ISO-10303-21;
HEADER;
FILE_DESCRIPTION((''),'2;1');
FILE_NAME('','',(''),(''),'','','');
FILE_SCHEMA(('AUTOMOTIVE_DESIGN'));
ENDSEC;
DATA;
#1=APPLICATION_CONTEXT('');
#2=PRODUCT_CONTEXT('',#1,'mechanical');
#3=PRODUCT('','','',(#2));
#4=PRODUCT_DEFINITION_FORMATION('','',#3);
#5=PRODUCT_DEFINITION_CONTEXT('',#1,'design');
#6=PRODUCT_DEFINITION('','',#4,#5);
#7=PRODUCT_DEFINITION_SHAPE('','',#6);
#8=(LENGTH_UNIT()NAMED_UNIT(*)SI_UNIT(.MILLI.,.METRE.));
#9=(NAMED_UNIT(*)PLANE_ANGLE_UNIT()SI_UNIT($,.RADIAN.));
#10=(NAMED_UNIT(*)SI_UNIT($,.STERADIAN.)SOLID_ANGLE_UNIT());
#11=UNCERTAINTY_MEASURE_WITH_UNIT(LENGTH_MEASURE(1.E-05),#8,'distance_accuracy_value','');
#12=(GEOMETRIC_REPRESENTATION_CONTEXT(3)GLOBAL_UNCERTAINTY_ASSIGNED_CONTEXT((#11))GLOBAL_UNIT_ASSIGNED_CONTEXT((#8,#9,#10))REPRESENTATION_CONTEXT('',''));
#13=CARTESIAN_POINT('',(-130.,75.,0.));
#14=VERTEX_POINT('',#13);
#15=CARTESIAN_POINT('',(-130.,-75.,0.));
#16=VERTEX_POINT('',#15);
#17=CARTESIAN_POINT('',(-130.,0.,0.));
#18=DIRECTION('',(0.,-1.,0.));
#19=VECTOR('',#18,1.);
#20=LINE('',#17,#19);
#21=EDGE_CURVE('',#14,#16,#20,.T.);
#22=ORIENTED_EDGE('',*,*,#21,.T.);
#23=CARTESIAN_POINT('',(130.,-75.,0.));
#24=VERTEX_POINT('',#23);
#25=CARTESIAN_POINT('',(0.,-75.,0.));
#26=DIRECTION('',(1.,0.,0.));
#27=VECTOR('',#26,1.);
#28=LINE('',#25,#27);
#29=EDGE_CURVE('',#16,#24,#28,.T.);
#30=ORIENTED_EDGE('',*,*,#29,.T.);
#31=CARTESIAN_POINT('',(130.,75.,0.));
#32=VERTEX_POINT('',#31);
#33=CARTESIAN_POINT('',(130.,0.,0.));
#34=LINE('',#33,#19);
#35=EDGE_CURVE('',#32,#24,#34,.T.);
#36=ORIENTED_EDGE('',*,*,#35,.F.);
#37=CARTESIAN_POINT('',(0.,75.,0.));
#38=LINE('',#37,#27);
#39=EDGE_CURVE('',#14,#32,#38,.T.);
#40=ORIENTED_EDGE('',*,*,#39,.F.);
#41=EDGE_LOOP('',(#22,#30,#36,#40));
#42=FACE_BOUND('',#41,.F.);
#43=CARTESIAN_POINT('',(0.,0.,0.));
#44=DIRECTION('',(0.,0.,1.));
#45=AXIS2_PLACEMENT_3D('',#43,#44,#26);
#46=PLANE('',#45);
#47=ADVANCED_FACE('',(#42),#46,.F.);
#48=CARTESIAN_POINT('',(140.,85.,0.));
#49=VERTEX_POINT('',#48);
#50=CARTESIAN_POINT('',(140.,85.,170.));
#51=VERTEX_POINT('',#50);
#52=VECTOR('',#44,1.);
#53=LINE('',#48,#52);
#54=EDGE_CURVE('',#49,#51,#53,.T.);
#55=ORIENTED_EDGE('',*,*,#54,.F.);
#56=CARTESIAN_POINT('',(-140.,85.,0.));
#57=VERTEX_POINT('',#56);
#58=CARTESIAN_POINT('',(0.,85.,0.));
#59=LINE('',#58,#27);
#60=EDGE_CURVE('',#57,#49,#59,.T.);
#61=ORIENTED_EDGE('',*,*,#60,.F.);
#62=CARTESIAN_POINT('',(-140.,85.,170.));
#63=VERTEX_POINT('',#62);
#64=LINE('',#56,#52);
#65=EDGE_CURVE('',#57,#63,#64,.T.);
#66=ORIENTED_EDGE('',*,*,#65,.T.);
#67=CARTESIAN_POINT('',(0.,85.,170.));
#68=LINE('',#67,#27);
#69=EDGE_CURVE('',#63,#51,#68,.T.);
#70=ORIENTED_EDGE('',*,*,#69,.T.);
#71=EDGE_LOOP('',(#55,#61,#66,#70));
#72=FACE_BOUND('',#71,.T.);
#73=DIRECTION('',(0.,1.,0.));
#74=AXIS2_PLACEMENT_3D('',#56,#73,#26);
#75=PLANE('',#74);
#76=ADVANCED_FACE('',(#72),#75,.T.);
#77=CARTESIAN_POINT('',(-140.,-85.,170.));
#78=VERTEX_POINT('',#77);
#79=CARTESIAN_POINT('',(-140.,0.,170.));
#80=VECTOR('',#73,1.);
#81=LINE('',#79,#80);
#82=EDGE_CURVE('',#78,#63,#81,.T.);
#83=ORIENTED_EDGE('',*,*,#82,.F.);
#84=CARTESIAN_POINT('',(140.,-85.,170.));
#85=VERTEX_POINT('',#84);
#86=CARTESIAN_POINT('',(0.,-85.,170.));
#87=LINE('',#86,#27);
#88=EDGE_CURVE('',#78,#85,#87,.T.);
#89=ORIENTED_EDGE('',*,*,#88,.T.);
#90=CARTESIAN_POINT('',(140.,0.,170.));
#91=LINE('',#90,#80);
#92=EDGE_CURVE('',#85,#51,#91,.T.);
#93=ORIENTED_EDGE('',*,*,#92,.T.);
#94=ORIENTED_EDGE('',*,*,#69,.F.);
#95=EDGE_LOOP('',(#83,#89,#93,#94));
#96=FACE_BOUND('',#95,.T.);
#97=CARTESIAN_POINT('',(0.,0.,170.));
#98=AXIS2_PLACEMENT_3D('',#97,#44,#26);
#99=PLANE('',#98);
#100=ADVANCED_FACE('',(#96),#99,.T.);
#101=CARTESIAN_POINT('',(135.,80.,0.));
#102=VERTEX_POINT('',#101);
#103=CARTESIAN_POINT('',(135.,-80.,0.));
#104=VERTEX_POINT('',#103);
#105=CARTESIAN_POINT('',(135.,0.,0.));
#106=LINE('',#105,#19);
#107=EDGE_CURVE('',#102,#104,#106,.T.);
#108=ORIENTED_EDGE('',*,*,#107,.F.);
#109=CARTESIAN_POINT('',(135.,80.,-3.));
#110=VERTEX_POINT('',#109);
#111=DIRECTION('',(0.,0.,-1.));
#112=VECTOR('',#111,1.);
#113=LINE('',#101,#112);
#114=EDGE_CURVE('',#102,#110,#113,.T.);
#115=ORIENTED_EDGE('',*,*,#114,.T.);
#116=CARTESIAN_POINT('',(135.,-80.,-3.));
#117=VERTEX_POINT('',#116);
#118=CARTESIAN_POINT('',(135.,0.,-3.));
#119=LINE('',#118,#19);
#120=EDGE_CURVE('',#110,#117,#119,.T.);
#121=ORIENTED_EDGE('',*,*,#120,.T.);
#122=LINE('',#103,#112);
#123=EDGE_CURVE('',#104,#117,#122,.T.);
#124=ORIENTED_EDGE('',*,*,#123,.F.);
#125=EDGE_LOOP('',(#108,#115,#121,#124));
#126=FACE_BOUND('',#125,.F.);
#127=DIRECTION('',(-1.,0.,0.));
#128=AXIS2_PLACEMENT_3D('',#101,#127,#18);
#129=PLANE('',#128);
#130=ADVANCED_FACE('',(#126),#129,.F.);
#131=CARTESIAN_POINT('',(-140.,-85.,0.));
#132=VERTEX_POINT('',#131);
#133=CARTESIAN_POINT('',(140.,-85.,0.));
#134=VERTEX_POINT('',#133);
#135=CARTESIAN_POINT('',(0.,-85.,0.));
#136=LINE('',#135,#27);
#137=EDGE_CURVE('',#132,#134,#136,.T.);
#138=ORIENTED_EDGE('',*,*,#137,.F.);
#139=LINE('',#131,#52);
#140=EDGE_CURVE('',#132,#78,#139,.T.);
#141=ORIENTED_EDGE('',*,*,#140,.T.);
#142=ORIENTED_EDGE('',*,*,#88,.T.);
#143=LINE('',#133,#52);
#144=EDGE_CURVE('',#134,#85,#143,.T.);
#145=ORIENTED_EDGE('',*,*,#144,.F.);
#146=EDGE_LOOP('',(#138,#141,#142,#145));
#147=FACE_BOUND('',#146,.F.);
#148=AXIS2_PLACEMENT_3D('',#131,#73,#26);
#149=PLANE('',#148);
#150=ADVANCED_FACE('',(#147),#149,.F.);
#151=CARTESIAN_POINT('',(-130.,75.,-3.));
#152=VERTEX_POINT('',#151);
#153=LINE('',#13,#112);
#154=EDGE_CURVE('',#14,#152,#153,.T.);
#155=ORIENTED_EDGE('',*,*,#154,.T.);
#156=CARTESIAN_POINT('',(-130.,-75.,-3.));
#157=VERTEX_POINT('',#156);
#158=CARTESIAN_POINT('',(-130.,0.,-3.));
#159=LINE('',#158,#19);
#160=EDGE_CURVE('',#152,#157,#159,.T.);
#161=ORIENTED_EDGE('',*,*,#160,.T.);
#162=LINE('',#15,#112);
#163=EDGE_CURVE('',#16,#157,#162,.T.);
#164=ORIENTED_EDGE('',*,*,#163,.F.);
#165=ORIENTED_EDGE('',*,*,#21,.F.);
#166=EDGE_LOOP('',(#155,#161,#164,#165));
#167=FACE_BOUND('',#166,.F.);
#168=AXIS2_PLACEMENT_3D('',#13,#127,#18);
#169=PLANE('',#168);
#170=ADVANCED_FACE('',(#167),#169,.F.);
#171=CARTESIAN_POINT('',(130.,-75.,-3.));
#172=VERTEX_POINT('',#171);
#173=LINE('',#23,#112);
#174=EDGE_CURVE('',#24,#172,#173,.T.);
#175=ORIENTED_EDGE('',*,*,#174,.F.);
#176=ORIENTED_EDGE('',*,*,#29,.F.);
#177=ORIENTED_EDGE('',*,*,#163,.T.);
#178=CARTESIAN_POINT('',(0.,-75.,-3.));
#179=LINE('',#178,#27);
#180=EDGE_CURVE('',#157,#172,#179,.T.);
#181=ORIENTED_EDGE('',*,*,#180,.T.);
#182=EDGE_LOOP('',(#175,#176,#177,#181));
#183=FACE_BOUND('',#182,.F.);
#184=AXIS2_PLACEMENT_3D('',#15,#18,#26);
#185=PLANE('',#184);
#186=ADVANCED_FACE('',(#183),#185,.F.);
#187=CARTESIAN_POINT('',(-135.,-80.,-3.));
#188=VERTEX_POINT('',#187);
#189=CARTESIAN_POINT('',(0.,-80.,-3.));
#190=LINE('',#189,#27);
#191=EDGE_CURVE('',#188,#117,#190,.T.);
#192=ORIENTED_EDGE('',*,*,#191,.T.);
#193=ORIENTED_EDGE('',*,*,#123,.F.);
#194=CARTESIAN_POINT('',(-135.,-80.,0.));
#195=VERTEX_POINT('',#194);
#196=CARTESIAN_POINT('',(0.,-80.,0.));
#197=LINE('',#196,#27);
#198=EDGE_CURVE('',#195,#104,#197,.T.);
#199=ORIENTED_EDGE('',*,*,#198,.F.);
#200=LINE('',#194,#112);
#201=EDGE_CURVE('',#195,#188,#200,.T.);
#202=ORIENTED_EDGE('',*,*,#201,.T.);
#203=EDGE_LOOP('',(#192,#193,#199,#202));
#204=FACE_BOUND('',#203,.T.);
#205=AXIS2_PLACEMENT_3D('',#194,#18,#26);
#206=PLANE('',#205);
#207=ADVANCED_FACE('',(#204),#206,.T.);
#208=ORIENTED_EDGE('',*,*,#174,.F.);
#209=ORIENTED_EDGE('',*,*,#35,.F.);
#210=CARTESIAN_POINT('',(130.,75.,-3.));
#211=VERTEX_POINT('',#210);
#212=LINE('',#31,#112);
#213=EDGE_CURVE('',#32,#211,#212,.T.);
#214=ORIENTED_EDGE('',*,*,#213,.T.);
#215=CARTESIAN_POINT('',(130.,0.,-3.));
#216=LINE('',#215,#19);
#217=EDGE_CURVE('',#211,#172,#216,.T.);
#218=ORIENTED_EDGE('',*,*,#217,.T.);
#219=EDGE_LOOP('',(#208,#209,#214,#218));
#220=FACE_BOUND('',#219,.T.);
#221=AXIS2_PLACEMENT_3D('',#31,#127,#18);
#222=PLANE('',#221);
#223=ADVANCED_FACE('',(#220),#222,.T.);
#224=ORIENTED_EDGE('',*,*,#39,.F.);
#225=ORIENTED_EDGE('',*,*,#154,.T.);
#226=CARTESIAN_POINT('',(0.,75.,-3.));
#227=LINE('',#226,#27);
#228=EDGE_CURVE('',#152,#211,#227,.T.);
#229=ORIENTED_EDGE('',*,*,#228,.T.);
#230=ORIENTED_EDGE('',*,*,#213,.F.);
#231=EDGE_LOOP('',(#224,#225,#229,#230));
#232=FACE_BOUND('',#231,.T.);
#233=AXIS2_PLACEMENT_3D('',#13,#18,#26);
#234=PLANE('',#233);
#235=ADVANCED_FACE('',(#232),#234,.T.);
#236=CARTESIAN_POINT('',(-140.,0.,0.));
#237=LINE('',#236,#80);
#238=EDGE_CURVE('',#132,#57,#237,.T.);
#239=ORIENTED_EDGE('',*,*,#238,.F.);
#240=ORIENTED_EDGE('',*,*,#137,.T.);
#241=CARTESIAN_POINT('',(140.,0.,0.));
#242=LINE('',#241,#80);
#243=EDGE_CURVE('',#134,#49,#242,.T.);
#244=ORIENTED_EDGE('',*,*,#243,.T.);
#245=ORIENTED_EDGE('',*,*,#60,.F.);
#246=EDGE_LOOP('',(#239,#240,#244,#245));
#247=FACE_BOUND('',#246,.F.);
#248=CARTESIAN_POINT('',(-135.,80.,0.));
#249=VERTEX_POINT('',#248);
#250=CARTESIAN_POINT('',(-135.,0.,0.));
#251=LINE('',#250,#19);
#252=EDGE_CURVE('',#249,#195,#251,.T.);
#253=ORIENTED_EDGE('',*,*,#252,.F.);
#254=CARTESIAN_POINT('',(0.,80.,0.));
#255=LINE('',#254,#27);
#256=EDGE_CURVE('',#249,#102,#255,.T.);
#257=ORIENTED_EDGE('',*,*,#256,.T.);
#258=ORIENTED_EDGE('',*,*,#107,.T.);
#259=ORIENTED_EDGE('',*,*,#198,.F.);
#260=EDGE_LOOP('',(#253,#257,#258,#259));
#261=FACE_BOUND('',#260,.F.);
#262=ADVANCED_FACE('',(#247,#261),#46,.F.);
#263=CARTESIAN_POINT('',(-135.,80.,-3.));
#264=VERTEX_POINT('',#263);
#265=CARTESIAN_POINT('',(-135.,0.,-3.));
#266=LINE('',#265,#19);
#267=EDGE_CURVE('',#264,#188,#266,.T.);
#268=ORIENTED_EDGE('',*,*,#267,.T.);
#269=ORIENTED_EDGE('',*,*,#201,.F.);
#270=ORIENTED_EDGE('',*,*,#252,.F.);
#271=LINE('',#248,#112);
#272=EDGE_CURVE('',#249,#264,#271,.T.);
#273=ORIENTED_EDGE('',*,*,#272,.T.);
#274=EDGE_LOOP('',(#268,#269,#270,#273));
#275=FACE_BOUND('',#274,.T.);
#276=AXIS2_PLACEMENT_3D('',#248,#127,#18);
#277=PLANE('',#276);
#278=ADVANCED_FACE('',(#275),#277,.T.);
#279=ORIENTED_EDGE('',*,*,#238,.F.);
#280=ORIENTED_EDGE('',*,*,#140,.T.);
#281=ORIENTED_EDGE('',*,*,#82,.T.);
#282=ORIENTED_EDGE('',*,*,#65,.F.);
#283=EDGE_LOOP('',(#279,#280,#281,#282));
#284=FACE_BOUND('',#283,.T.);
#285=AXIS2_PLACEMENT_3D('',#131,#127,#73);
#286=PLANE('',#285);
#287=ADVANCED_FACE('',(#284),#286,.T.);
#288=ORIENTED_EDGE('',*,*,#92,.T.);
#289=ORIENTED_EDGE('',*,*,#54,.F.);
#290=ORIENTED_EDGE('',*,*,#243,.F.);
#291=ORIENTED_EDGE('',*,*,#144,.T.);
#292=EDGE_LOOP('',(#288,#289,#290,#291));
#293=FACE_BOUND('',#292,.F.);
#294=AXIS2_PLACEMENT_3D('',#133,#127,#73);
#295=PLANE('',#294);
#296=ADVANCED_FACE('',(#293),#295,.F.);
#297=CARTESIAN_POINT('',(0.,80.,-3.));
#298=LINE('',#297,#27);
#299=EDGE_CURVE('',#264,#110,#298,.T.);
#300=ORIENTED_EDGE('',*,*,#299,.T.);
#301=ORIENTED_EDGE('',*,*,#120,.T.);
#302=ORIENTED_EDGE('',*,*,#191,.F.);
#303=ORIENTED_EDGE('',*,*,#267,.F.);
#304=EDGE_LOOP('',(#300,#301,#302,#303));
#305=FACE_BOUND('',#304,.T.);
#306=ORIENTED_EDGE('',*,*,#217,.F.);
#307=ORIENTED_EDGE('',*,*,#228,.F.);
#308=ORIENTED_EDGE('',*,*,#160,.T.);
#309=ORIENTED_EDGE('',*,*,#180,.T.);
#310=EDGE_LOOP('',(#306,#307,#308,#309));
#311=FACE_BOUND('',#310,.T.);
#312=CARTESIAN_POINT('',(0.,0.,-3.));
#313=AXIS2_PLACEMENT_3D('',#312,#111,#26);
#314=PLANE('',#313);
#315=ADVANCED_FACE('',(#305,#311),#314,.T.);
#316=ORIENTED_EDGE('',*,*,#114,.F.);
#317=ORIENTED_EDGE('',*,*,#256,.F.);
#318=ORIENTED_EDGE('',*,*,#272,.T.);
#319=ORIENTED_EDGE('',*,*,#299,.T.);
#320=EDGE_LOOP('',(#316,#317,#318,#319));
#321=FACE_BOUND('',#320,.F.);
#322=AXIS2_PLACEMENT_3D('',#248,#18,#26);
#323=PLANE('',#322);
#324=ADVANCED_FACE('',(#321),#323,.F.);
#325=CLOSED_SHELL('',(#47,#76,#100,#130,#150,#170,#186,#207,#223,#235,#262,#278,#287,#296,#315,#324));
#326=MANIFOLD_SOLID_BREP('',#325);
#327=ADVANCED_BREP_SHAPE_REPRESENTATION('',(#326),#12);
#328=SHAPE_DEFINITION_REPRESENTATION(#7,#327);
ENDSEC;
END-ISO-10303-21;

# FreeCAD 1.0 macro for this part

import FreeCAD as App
import Part
import Sketcher

V = App.Vector
Q = App.Units.Quantity

doc = App.newDocument("Part")
params = doc.addObject("Spreadsheet::Sheet", "Params")
for row, (alias, value) in enumerate([
    ("sketch1_width", "280 mm"),
    ("sketch1_height", "170 mm"),
    ("pad1_length", "170 mm"),
    ("sketch2_width", "270 mm"),
    ("sketch2_width2", "260 mm"),
    ("sketch2_height", "160 mm"),
    ("sketch2_height2", "150 mm"),
    ("pad2_length", "3 mm"),
], start=1):
    params.set(f"A{row}", alias)
    params.set(f"B{row}", "=" + value)
    params.setAlias(f"B{row}", alias)

body = doc.addObject("PartDesign::Body", "Body")

# Sketch on XY plane
sketch1 = body.newObject("Sketcher::SketchObject", "Sketch")
sketch1.AttachmentSupport = (doc.getObject("XY_Plane"), [""])
sketch1.MapMode = "FlatFace"
sketch1.addGeometry(Part.LineSegment(V(-140, 85, 0), V(-140, -85, 0)), False)
sketch1.addGeometry(Part.LineSegment(V(-140, -85, 0), V(140, -85, 0)), False)
sketch1.addGeometry(Part.LineSegment(V(140, -85, 0), V(140, 85, 0)), False)
sketch1.addGeometry(Part.LineSegment(V(140, 85, 0), V(-140, 85, 0)), False)
sketch1.addConstraint(Sketcher.Constraint("Coincident", 0, 2, 1, 1))
sketch1.addConstraint(Sketcher.Constraint("Coincident", 1, 2, 2, 1))
sketch1.addConstraint(Sketcher.Constraint("Coincident", 2, 2, 3, 1))
sketch1.addConstraint(Sketcher.Constraint("Coincident", 3, 2, 0, 1))
sketch1.addConstraint(Sketcher.Constraint("Vertical", 0))
sketch1.addConstraint(Sketcher.Constraint("Horizontal", 1))
sketch1.addConstraint(Sketcher.Constraint("Vertical", 2))
sketch1.addConstraint(Sketcher.Constraint("Horizontal", 3))
sketch1.addConstraint(Sketcher.Constraint("Symmetric", 0, 2, 2, 2, -1, 1))
sketch1.addConstraint(Sketcher.Constraint("DistanceX", 1, 1, 1, 2, Q("280 mm")))
sketch1.addConstraint(Sketcher.Constraint("DistanceY", 0, 2, 0, 1, Q("170 mm")))
sketch1.setExpression("Constraints[9]", "Params.sketch1_width")
sketch1.setExpression("Constraints[10]", "Params.sketch1_height")
pad1 = body.newObject("PartDesign::Pad", "Pad")
pad1.Profile = sketch1
pad1.setExpression("Length", "Params.pad1_length")

# Sketch on XY plane
sketch2 = body.newObject("Sketcher::SketchObject", "Sketch001")
sketch2.AttachmentSupport = (doc.getObject("XY_Plane"), [""])
sketch2.MapMode = "FlatFace"
sketch2.addGeometry(Part.LineSegment(V(-135, -80, 0), V(-135, 80, 0)), False)
sketch2.addGeometry(Part.LineSegment(V(-135, 80, 0), V(135, 80, 0)), False)
sketch2.addGeometry(Part.LineSegment(V(135, 80, 0), V(135, -80, 0)), False)
sketch2.addGeometry(Part.LineSegment(V(135, -80, 0), V(-135, -80, 0)), False)
sketch2.addGeometry(Part.LineSegment(V(130, 75, 0), V(-130, 75, 0)), False)
sketch2.addGeometry(Part.LineSegment(V(-130, 75, 0), V(-130, -75, 0)), False)
sketch2.addGeometry(Part.LineSegment(V(-130, -75, 0), V(130, -75, 0)), False)
sketch2.addGeometry(Part.LineSegment(V(130, -75, 0), V(130, 75, 0)), False)
sketch2.addConstraint(Sketcher.Constraint("Coincident", 0, 2, 1, 1))
sketch2.addConstraint(Sketcher.Constraint("Coincident", 1, 2, 2, 1))
sketch2.addConstraint(Sketcher.Constraint("Coincident", 2, 2, 3, 1))
sketch2.addConstraint(Sketcher.Constraint("Coincident", 3, 2, 0, 1))
sketch2.addConstraint(Sketcher.Constraint("Coincident", 4, 2, 5, 1))
sketch2.addConstraint(Sketcher.Constraint("Coincident", 5, 2, 6, 1))
sketch2.addConstraint(Sketcher.Constraint("Coincident", 6, 2, 7, 1))
sketch2.addConstraint(Sketcher.Constraint("Coincident", 7, 2, 4, 1))
sketch2.addConstraint(Sketcher.Constraint("Vertical", 0))
sketch2.addConstraint(Sketcher.Constraint("Horizontal", 1))
sketch2.addConstraint(Sketcher.Constraint("Vertical", 2))
sketch2.addConstraint(Sketcher.Constraint("Horizontal", 3))
sketch2.addConstraint(Sketcher.Constraint("Horizontal", 4))
sketch2.addConstraint(Sketcher.Constraint("Vertical", 5))
sketch2.addConstraint(Sketcher.Constraint("Horizontal", 6))
sketch2.addConstraint(Sketcher.Constraint("Vertical", 7))
sketch2.addConstraint(Sketcher.Constraint("Symmetric", 0, 2, 2, 2, -1, 1))
sketch2.addConstraint(Sketcher.Constraint("Symmetric", 4, 2, 6, 2, -1, 1))
sketch2.addConstraint(Sketcher.Constraint("DistanceX", 1, 1, 1, 2, Q("270 mm")))
sketch2.addConstraint(Sketcher.Constraint("DistanceX", 4, 2, 4, 1, Q("260 mm")))
sketch2.addConstraint(Sketcher.Constraint("DistanceY", 0, 1, 0, 2, Q("160 mm")))
sketch2.addConstraint(Sketcher.Constraint("DistanceY", 5, 2, 5, 1, Q("150 mm")))
sketch2.setExpression("Constraints[18]", "Params.sketch2_width")
sketch2.setExpression("Constraints[19]", "Params.sketch2_width2")
sketch2.setExpression("Constraints[20]", "Params.sketch2_height")
sketch2.setExpression("Constraints[21]", "Params.sketch2_height2")
pad2 = body.newObject("PartDesign::Pad", "Pad001")
pad2.Profile = sketch2
pad2.setExpression("Length", "Params.pad2_length")
pad2.Reversed = True

doc.recompute()
